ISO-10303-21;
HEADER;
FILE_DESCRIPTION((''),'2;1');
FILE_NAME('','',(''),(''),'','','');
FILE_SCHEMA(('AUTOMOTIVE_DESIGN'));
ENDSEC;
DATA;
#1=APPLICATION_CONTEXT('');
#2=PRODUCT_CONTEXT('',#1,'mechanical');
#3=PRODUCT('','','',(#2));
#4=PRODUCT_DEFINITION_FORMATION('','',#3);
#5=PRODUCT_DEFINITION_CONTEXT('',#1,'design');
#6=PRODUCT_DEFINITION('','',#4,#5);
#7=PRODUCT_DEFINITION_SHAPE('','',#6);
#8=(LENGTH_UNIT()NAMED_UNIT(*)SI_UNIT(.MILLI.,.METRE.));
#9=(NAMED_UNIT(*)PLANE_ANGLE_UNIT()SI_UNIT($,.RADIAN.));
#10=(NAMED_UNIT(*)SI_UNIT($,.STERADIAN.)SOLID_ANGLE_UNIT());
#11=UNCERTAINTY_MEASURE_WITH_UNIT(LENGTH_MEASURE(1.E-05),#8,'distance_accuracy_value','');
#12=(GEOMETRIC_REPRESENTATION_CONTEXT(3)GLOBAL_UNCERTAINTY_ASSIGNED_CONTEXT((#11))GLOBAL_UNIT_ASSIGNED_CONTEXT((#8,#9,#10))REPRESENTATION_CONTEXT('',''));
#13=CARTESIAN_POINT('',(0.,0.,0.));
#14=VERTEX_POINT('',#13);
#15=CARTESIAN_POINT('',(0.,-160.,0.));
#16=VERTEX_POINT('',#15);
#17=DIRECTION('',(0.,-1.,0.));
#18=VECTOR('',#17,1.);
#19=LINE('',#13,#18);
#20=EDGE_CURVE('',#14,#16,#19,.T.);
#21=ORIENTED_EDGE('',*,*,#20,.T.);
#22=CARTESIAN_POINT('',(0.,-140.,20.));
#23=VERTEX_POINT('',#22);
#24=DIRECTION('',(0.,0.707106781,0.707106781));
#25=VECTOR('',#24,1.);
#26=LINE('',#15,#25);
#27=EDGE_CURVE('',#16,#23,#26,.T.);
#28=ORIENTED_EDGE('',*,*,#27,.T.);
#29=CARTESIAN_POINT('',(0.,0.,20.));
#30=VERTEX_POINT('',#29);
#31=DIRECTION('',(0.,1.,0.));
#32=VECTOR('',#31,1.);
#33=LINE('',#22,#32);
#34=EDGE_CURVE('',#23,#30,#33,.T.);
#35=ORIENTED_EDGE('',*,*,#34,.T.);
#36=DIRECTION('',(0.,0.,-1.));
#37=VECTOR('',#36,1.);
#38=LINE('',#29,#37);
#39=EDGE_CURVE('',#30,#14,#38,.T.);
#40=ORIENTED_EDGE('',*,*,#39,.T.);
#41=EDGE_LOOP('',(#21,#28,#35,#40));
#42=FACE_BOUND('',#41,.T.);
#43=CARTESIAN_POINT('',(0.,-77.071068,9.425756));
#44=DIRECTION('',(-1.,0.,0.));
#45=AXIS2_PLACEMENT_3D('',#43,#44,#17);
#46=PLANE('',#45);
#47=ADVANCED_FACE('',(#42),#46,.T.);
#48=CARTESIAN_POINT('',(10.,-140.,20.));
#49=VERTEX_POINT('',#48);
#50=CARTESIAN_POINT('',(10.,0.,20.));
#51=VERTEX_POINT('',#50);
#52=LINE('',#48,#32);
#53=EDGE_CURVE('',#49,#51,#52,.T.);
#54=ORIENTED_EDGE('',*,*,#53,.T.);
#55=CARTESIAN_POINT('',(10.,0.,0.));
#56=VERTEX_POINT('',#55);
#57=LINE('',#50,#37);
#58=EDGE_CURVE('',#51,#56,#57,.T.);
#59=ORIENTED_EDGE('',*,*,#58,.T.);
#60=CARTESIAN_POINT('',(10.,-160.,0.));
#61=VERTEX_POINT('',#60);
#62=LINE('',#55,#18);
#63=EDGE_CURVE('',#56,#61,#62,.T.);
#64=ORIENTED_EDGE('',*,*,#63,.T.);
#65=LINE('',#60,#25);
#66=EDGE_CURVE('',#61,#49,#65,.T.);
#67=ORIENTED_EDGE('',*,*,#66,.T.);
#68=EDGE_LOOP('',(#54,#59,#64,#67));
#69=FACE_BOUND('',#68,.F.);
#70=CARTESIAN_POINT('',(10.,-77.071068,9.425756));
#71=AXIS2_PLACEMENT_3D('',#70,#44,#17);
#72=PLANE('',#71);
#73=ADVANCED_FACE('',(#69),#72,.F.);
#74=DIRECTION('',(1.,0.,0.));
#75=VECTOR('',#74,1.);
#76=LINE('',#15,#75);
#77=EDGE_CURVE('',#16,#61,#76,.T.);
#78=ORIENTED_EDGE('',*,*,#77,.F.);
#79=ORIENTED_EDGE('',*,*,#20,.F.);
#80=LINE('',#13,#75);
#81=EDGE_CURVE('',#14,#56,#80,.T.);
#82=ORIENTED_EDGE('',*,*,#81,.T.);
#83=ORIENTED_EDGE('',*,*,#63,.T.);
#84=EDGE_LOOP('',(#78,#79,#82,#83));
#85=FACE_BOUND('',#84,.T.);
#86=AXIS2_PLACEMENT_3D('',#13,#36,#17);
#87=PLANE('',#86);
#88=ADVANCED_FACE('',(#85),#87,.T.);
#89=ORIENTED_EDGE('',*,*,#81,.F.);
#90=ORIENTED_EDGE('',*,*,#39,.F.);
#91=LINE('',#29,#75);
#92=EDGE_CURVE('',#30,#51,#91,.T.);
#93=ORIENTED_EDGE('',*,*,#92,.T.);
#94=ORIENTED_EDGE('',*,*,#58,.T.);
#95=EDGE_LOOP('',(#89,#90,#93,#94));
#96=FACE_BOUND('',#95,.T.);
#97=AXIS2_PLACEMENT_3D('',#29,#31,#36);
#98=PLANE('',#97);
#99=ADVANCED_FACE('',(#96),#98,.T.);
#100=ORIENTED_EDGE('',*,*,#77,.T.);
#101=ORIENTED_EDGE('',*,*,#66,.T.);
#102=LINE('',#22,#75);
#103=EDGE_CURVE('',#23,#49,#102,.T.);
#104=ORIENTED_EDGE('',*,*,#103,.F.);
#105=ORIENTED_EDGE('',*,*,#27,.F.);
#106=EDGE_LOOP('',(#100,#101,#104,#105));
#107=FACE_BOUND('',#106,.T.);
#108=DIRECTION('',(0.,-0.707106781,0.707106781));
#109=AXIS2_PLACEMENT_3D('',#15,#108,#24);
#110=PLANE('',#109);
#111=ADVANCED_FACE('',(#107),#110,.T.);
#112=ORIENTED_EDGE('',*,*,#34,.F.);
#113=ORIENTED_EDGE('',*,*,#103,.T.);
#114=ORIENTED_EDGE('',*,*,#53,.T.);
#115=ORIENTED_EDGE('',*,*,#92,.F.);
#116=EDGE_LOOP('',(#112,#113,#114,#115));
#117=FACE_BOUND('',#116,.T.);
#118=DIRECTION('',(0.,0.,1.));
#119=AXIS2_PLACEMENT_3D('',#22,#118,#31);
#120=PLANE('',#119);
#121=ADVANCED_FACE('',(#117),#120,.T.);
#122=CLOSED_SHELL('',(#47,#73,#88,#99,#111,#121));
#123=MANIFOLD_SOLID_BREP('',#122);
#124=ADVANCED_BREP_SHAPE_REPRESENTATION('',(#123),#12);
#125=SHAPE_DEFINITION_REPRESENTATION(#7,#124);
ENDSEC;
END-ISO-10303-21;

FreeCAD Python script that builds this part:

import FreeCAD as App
import Part
import Sketcher

V = App.Vector

doc = App.newDocument("Part")
body = doc.addObject("PartDesign::Body", "Body")

sketch1 = doc.addObject("Sketcher::SketchObject", "Sketch")
body.addObject(sketch1)
sketch1.AttachmentSupport = (doc.YZ_Plane, [""])
sketch1.MapMode = "FlatFace"
sketch1.addGeometry([
    Part.LineSegment(V(-160, 0, 0), V(0, 0, 0)),
    Part.LineSegment(V(0, 0, 0), V(0, 20, 0)),
    Part.LineSegment(V(0, 20, 0), V(-140, 20, 0)),
    Part.LineSegment(V(-140, 20, 0), V(-160, 0, 0)),
], False)
sketch1.addConstraint([
    Sketcher.Constraint("Coincident", 0, 2, 1, 1),
    Sketcher.Constraint("Coincident", 1, 2, 2, 1),
    Sketcher.Constraint("Coincident", 2, 2, 3, 1),
    Sketcher.Constraint("Coincident", 3, 2, 0, 1),
    Sketcher.Constraint("Horizontal", 0),
    Sketcher.Constraint("Vertical", 1),
    Sketcher.Constraint("Horizontal", 2),
    Sketcher.Constraint("Coincident", 0, 2, -1, 1),
    Sketcher.Constraint("DistanceX", 0, 1, 0, 2, 160.0),
    Sketcher.Constraint("DistanceX", 2, 2, 2, 1, 140.0),
    Sketcher.Constraint("DistanceY", 1, 1, 1, 2, 20.0),
])
pad1 = doc.addObject("PartDesign::Pad", "Pad")
body.addObject(pad1)
pad1.Profile = sketch1
pad1.Length = 10

doc.recompute()
